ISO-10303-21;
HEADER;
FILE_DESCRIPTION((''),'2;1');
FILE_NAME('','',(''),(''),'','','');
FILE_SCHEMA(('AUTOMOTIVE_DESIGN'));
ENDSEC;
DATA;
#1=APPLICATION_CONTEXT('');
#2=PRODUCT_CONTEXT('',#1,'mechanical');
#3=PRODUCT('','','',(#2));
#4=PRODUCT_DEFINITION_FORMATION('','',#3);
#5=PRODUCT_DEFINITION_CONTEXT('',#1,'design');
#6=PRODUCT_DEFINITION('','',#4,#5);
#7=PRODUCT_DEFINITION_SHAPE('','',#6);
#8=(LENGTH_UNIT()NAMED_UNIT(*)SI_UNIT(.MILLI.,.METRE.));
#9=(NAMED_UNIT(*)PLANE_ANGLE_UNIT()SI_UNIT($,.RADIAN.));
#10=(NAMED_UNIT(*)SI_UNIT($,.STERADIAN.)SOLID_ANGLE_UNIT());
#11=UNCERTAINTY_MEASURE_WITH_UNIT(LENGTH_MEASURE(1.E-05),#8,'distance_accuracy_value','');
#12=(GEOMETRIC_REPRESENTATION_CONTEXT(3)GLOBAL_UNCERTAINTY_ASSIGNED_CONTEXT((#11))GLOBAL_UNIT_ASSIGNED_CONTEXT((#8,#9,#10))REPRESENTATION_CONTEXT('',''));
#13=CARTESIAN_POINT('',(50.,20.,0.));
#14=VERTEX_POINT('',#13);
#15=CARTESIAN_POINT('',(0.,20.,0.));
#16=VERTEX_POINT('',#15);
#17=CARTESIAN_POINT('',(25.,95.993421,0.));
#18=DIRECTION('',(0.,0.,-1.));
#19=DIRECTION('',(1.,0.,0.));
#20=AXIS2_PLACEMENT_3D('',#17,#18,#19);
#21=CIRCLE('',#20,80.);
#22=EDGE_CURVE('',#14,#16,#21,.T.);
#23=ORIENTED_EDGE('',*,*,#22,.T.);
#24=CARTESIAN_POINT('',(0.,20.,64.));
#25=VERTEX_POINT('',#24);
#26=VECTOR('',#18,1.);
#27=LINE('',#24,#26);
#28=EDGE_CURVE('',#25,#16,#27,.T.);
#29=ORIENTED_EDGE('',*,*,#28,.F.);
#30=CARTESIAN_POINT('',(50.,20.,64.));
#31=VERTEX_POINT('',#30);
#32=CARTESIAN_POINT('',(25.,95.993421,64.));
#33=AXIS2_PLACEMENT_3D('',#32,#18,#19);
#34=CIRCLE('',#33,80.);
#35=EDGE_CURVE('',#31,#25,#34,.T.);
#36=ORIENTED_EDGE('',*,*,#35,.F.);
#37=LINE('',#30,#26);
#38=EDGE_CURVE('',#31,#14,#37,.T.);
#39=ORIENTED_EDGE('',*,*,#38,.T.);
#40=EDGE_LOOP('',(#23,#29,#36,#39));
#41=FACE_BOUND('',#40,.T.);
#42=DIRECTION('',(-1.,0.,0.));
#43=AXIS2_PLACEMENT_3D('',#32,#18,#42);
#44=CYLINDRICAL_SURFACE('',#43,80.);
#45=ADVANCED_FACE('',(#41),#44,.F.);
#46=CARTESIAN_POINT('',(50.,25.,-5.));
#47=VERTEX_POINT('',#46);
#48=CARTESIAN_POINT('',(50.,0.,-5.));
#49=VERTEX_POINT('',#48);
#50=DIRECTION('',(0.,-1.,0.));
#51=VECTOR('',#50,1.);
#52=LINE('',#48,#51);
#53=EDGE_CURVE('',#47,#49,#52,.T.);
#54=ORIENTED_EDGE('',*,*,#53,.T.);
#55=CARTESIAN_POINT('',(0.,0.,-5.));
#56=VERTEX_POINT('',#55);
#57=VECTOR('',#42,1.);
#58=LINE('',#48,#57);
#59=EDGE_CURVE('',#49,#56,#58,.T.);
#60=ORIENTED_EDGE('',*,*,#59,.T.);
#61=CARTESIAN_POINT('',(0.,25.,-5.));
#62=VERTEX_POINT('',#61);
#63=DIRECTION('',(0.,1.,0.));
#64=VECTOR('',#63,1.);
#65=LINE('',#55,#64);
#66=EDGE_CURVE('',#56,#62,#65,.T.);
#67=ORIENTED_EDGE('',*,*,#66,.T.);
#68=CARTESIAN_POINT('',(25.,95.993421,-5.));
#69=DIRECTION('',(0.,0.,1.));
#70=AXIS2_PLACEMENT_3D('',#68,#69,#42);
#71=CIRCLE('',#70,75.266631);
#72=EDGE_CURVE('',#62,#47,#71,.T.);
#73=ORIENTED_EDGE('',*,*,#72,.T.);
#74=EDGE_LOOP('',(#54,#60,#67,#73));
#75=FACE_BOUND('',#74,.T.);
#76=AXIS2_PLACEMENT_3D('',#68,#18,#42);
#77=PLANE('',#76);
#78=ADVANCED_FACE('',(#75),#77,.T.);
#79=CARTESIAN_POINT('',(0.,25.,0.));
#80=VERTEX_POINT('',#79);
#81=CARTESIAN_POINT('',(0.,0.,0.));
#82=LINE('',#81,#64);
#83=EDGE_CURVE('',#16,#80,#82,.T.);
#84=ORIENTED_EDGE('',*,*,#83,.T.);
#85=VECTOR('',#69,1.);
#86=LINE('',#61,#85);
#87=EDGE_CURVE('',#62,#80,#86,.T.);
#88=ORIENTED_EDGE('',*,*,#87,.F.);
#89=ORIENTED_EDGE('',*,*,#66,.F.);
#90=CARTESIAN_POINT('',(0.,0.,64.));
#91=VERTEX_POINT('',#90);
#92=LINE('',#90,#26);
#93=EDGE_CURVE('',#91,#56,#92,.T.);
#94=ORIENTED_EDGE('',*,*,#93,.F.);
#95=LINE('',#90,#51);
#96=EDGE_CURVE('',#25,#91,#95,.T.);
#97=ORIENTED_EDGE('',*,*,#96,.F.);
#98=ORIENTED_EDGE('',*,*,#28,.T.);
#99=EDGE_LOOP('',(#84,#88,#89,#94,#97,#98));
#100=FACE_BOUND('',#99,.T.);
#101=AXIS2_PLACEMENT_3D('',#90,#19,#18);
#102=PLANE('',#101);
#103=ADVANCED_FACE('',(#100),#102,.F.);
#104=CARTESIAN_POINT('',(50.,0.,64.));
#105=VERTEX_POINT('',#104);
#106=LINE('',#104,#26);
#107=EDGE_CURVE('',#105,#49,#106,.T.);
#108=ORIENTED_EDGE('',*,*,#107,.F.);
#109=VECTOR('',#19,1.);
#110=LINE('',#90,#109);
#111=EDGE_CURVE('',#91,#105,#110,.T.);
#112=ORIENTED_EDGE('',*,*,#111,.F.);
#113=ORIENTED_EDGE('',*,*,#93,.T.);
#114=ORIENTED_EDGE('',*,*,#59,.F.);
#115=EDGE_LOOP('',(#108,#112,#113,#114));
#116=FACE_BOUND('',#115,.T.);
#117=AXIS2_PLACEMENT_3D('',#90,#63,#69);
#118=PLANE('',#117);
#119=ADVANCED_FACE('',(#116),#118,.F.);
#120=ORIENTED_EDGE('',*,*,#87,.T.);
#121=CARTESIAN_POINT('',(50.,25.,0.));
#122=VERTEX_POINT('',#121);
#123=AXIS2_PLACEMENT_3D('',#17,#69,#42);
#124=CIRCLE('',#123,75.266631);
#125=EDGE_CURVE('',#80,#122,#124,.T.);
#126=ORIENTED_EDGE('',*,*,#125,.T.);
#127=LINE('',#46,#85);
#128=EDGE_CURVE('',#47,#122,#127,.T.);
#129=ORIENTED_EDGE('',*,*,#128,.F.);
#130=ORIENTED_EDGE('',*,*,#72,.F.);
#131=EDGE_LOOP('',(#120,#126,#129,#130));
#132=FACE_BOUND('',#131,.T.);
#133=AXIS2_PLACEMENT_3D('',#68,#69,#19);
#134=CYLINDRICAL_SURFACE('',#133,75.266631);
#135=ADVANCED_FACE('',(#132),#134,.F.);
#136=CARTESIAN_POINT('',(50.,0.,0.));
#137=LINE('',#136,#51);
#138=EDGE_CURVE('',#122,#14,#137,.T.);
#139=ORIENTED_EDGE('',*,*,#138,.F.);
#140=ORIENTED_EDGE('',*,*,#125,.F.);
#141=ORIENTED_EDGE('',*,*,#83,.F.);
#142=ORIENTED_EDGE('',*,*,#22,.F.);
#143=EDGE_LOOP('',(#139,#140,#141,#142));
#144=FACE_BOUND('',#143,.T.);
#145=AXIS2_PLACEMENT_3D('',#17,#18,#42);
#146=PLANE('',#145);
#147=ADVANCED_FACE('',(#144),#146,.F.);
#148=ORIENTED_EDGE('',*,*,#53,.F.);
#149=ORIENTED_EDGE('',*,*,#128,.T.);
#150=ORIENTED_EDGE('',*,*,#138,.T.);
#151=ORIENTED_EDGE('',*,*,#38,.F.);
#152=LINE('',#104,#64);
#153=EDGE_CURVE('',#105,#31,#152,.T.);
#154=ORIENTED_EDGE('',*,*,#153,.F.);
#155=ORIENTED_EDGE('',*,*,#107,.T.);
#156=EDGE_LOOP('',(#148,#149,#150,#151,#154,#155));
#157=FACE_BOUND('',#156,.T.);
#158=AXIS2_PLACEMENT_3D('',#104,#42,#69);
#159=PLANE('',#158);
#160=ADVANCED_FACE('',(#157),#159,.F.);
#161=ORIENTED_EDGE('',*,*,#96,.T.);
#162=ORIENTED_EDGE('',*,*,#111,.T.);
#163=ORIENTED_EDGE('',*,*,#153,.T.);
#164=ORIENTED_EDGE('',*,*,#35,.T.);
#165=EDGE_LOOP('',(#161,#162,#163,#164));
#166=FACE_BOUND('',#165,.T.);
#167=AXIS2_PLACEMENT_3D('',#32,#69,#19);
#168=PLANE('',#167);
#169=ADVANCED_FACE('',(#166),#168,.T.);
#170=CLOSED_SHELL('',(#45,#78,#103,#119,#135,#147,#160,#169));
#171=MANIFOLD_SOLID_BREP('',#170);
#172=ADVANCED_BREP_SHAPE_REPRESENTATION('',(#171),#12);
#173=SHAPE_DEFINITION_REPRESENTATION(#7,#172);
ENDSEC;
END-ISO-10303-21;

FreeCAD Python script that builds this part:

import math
import FreeCAD as App
import Part
import Sketcher
Q = App.Units.Quantity

doc = App.newDocument("Part")
params = doc.addObject("Spreadsheet::Sheet", "Params")
for row, (alias, value) in enumerate([
    ("sketch1_radius", "80 mm"),
    ("sketch1_width", "50 mm"),
    ("sketch1_height", "20 mm"),
    ("pad1_length", "64 mm"),
    ("sketch2_width", "50 mm"),
    ("sketch2_height", "25 mm"),
    ("pad2_length", "5 mm"),
], start=1):
    params.set(f"A{row}", alias)
    params.set(f"B{row}", "=" + value)
    params.setAlias(f"B{row}", alias)

body = doc.addObject("PartDesign::Body", "Body")

sketch1 = body.newObject("Sketcher::SketchObject", "Sketch")
sketch1.AttachmentSupport = (doc.getObject("XY_Plane"), [""])
sketch1.MapMode = "FlatFace"
sketch1.addGeometry([
    Part.LineSegment(App.Vector(0, 0, 0), App.Vector(50, 0, 0)),
    Part.LineSegment(App.Vector(50, 0, 0), App.Vector(50, 20, 0)),
    Part.ArcOfCircle(Part.Circle(App.Vector(25, 96, 0), App.Vector(0, 0, 1), 80), math.radians(-108), math.radians(-72)),
    Part.LineSegment(App.Vector(0, 20, 0), App.Vector(0, 0, 0)),
], False)
sketch1.addConstraint([
    Sketcher.Constraint("Coincident", 0, 2, 1, 1),
    Sketcher.Constraint("Coincident", 1, 2, 2, 2),
    Sketcher.Constraint("Coincident", 2, 1, 3, 1),
    Sketcher.Constraint("Coincident", 3, 2, 0, 1),
    Sketcher.Constraint("Horizontal", 0),
    Sketcher.Constraint("Vertical", 1),
    Sketcher.Constraint("Vertical", 3),
    Sketcher.Constraint("Coincident", 3, 2, -1, 1),
    Sketcher.Constraint("Horizontal", 1, 2, 2, 1),
    Sketcher.Constraint("Radius", 2, Q("80 mm")),
    Sketcher.Constraint("DistanceX", 0, 1, 0, 2, Q("50 mm")),
    Sketcher.Constraint("DistanceY", 1, 1, 1, 2, Q("20 mm")),
])
sketch1.setExpression("Constraints[9]", "Params.sketch1_radius")
sketch1.setExpression("Constraints[10]", "Params.sketch1_width")
sketch1.setExpression("Constraints[11]", "Params.sketch1_height")
pad1 = body.newObject("PartDesign::Pad", "Pad")
pad1.Profile = sketch1
pad1.setExpression("Length", "Params.pad1_length")

sketch2 = body.newObject("Sketcher::SketchObject", "Sketch001")
sketch2.AttachmentSupport = (doc.getObject("XY_Plane"), [""])
sketch2.MapMode = "FlatFace"
sketch2.addGeometry([
    Part.LineSegment(App.Vector(50, 0, 0), App.Vector(0, 0, 0)),
    Part.LineSegment(App.Vector(0, 0, 0), App.Vector(0, 25, 0)),
    Part.ArcOfCircle(Part.Circle(App.Vector(25, 96, 0), App.Vector(0, 0, 1), 75), math.radians(-109), math.radians(-71)),
    Part.LineSegment(App.Vector(50, 25, 0), App.Vector(50, 0, 0)),
], False)
sketch2.addConstraint([
    Sketcher.Constraint("Coincident", 0, 2, 1, 1),
    Sketcher.Constraint("Coincident", 1, 2, 2, 1),
    Sketcher.Constraint("Coincident", 2, 2, 3, 1),
    Sketcher.Constraint("Coincident", 3, 2, 0, 1),
    Sketcher.Constraint("Horizontal", 0),
    Sketcher.Constraint("Vertical", 1),
    Sketcher.Constraint("Vertical", 3),
    Sketcher.Constraint("Coincident", 0, 2, -1, 1),
    Sketcher.Constraint("Horizontal", 1, 2, 2, 2),
    Sketcher.Constraint("DistanceX", 0, 2, 0, 1, Q("50 mm")),
    Sketcher.Constraint("DistanceY", 1, 1, 1, 2, Q("25 mm")),
    Sketcher.Constraint("Radius", 2, Q("75.266631 mm")),
])
sketch2.setExpression("Constraints[9]", "Params.sketch2_width")
sketch2.setExpression("Constraints[10]", "Params.sketch2_height")
pad2 = body.newObject("PartDesign::Pad", "Pad001")
pad2.Profile = sketch2
pad2.setExpression("Length", "Params.pad2_length")
pad2.Reversed = True

doc.recompute()
